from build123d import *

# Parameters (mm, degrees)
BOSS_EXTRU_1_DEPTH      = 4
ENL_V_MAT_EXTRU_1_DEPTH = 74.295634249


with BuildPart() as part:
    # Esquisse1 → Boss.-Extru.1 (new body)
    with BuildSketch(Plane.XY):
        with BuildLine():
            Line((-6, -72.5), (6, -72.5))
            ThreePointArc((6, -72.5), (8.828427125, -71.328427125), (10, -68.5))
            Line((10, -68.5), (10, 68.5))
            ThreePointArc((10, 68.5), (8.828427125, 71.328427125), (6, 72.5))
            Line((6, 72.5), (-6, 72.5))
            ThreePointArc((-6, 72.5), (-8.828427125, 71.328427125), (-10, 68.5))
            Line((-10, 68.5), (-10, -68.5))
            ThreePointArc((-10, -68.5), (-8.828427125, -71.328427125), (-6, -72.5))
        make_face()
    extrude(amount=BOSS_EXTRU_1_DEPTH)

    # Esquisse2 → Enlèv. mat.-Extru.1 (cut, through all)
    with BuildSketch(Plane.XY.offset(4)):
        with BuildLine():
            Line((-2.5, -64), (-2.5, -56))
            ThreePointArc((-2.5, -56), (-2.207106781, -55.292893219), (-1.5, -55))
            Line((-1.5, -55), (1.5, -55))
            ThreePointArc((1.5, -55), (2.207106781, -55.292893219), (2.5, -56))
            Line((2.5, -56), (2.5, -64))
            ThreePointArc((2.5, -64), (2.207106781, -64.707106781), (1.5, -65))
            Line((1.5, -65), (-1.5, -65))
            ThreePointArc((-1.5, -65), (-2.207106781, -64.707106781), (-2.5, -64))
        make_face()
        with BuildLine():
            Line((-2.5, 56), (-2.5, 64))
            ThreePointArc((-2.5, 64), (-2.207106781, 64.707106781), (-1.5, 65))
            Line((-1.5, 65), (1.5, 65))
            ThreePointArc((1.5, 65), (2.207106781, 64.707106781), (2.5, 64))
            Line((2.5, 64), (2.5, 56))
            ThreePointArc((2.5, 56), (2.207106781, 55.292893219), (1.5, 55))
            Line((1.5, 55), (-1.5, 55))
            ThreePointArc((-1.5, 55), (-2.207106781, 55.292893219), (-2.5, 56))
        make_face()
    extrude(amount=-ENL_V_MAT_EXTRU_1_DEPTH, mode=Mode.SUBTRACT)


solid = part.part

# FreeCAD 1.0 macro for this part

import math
import FreeCAD as App
import Part
import Sketcher
from FreeCAD import Vector

doc = App.newDocument("Part")
params = doc.addObject("Spreadsheet::Sheet", "Params")
for row, (alias, value) in enumerate([
    ("sketch1_radius", "4 mm"),
    ("sketch1_width", "12 mm"),
    ("sketch1_height", "137 mm"),
    ("pad1_length", "4 mm"),
    ("sketch2_radius", "1 mm"),
    ("sketch2_width", "3 mm"),
    ("sketch2_height", "8 mm"),
], start=1):
    params.set(f"A{row}", alias)
    params.set(f"B{row}", "=" + value)
    params.setAlias(f"B{row}", alias)

body = doc.addObject("PartDesign::Body", "Body")

sketch1 = doc.addObject("Sketcher::SketchObject", "Sketch")
body.addObject(sketch1)
sketch1.AttachmentSupport = (doc.XY_Plane, [""])
sketch1.MapMode = "FlatFace"
sketch1.addGeometry([
    Part.LineSegment(Vector(-6, -72.5, 0), Vector(6, -72.5, 0)),
    Part.ArcOfCircle(Part.Circle(Vector(6, -68.5, 0), Vector(0, 0, 1), 4), math.radians(-90), math.radians(0)),
    Part.LineSegment(Vector(10, -68.5, 0), Vector(10, 68.5, 0)),
    Part.ArcOfCircle(Part.Circle(Vector(6, 68.5, 0), Vector(0, 0, 1), 4), math.radians(0), math.radians(90)),
    Part.LineSegment(Vector(6, 72.5, 0), Vector(-6, 72.5, 0)),
    Part.ArcOfCircle(Part.Circle(Vector(-6, 68.5, 0), Vector(0, 0, 1), 4), math.radians(90), math.radians(180)),
    Part.LineSegment(Vector(-10, 68.5, 0), Vector(-10, -68.5, 0)),
    Part.ArcOfCircle(Part.Circle(Vector(-6, -68.5, 0), Vector(0, 0, 1), 4), math.radians(180), math.radians(270)),
], False)
sketch1.addConstraint([
    Sketcher.Constraint("Tangent", 0, 2, 1, 1),
    Sketcher.Constraint("Tangent", 1, 2, 2, 1),
    Sketcher.Constraint("Tangent", 2, 2, 3, 1),
    Sketcher.Constraint("Tangent", 3, 2, 4, 1),
    Sketcher.Constraint("Tangent", 4, 2, 5, 1),
    Sketcher.Constraint("Tangent", 5, 2, 6, 1),
    Sketcher.Constraint("Tangent", 6, 2, 7, 1),
    Sketcher.Constraint("Tangent", 7, 2, 0, 1),
    Sketcher.Constraint("Horizontal", 0),
    Sketcher.Constraint("Vertical", 2),
    Sketcher.Constraint("Horizontal", 4),
    Sketcher.Constraint("Vertical", 6),
    Sketcher.Constraint("Equal", 1, 3),
    Sketcher.Constraint("Equal", 3, 5),
    Sketcher.Constraint("Equal", 5, 7),
    Sketcher.Constraint("Symmetric", 1, 3, 5, 3, -1, 1),
    Sketcher.Constraint("Radius", 1, 4.0),
    Sketcher.Constraint("DistanceX", 0, 1, 0, 2, 12.0),
    Sketcher.Constraint("DistanceY", 2, 1, 2, 2, 137.0),
])
sketch1.setExpression("Constraints[16]", "Params.sketch1_radius")
sketch1.setExpression("Constraints[17]", "Params.sketch1_width")
sketch1.setExpression("Constraints[18]", "Params.sketch1_height")
pad1 = doc.addObject("PartDesign::Pad", "Pad")
body.addObject(pad1)
pad1.Profile = sketch1
pad1.setExpression("Length", "Params.pad1_length")

sketch2 = doc.addObject("Sketcher::SketchObject", "Sketch001")
body.addObject(sketch2)
sketch2.AttachmentSupport = (doc.XY_Plane, [""])
sketch2.MapMode = "FlatFace"
sketch2.AttachmentOffset = App.Placement(Vector(0, 0, 4), App.Rotation())
sketch2.addGeometry([
    Part.LineSegment(Vector(-2.5, -56, 0), Vector(-2.5, -64, 0)),
    Part.ArcOfCircle(Part.Circle(Vector(-1.5, -64, 0), Vector(0, 0, 1), 1), math.radians(-180), math.radians(-90)),
    Part.LineSegment(Vector(-1.5, -65, 0), Vector(1.5, -65, 0)),
    Part.ArcOfCircle(Part.Circle(Vector(1.5, -64, 0), Vector(0, 0, 1), 1), math.radians(-90), math.radians(0)),
    Part.LineSegment(Vector(2.5, -64, 0), Vector(2.5, -56, 0)),
    Part.ArcOfCircle(Part.Circle(Vector(1.5, -56, 0), Vector(0, 0, 1), 1), math.radians(0), math.radians(90)),
    Part.LineSegment(Vector(1.5, -55, 0), Vector(-1.5, -55, 0)),
    Part.ArcOfCircle(Part.Circle(Vector(-1.5, -56, 0), Vector(0, 0, 1), 1), math.radians(90), math.radians(180)),
    Part.LineSegment(Vector(-2.5, 64, 0), Vector(-2.5, 56, 0)),
    Part.ArcOfCircle(Part.Circle(Vector(-1.5, 56, 0), Vector(0, 0, 1), 1), math.radians(-180), math.radians(-90)),
    Part.LineSegment(Vector(-1.5, 55, 0), Vector(1.5, 55, 0)),
    Part.ArcOfCircle(Part.Circle(Vector(1.5, 56, 0), Vector(0, 0, 1), 1), math.radians(-90), math.radians(0)),
    Part.LineSegment(Vector(2.5, 56, 0), Vector(2.5, 64, 0)),
    Part.ArcOfCircle(Part.Circle(Vector(1.5, 64, 0), Vector(0, 0, 1), 1), math.radians(0), math.radians(90)),
    Part.LineSegment(Vector(1.5, 65, 0), Vector(-1.5, 65, 0)),
    Part.ArcOfCircle(Part.Circle(Vector(-1.5, 64, 0), Vector(0, 0, 1), 1), math.radians(90), math.radians(180)),
], False)
sketch2.addConstraint([
    Sketcher.Constraint("Tangent", 0, 2, 1, 1),
    Sketcher.Constraint("Tangent", 1, 2, 2, 1),
    Sketcher.Constraint("Tangent", 2, 2, 3, 1),
    Sketcher.Constraint("Tangent", 3, 2, 4, 1),
    Sketcher.Constraint("Tangent", 4, 2, 5, 1),
    Sketcher.Constraint("Tangent", 5, 2, 6, 1),
    Sketcher.Constraint("Tangent", 6, 2, 7, 1),
    Sketcher.Constraint("Tangent", 7, 2, 0, 1),
    Sketcher.Constraint("Tangent", 8, 2, 9, 1),
    Sketcher.Constraint("Tangent", 9, 2, 10, 1),
    Sketcher.Constraint("Tangent", 10, 2, 11, 1),
    Sketcher.Constraint("Tangent", 11, 2, 12, 1),
    Sketcher.Constraint("Tangent", 12, 2, 13, 1),
    Sketcher.Constraint("Tangent", 13, 2, 14, 1),
    Sketcher.Constraint("Tangent", 14, 2, 15, 1),
    Sketcher.Constraint("Tangent", 15, 2, 8, 1),
    Sketcher.Constraint("Vertical", 0),
    Sketcher.Constraint("Horizontal", 2),
    Sketcher.Constraint("Vertical", 4),
    Sketcher.Constraint("Horizontal", 6),
    Sketcher.Constraint("Vertical", 8),
    Sketcher.Constraint("Horizontal", 10),
    Sketcher.Constraint("Vertical", 12),
    Sketcher.Constraint("Horizontal", 14),
    Sketcher.Constraint("Equal", 1, 3),
    Sketcher.Constraint("Equal", 3, 5),
    Sketcher.Constraint("Equal", 5, 7),
    Sketcher.Constraint("Equal", 7, 9),
    Sketcher.Constraint("Equal", 9, 11),
    Sketcher.Constraint("Equal", 11, 13),
    Sketcher.Constraint("Equal", 13, 15),
    Sketcher.Constraint("Symmetric", 5, 3, 9, 3, -1, 1),
    Sketcher.Constraint("Symmetric", 1, 3, 13, 3, -1, 1),
    Sketcher.Constraint("Vertical", 7, 3, 9, 3),
    Sketcher.Constraint("Radius", 1, 1.0),
    Sketcher.Constraint("DistanceX", 2, 1, 2, 2, 3.0),
    Sketcher.Constraint("DistanceY", 0, 2, 0, 1, 8.0),
    Sketcher.Constraint("DistanceY", 1, 3, -1, 1, 64.0),
])
sketch2.setExpression("Constraints[34]", "Params.sketch2_radius")
sketch2.setExpression("Constraints[35]", "Params.sketch2_width")
sketch2.setExpression("Constraints[36]", "Params.sketch2_height")
pocket1 = doc.addObject("PartDesign::Pocket", "Pocket")
body.addObject(pocket1)
pocket1.Profile = sketch2
pocket1.Type = "ThroughAll"

doc.recompute()
